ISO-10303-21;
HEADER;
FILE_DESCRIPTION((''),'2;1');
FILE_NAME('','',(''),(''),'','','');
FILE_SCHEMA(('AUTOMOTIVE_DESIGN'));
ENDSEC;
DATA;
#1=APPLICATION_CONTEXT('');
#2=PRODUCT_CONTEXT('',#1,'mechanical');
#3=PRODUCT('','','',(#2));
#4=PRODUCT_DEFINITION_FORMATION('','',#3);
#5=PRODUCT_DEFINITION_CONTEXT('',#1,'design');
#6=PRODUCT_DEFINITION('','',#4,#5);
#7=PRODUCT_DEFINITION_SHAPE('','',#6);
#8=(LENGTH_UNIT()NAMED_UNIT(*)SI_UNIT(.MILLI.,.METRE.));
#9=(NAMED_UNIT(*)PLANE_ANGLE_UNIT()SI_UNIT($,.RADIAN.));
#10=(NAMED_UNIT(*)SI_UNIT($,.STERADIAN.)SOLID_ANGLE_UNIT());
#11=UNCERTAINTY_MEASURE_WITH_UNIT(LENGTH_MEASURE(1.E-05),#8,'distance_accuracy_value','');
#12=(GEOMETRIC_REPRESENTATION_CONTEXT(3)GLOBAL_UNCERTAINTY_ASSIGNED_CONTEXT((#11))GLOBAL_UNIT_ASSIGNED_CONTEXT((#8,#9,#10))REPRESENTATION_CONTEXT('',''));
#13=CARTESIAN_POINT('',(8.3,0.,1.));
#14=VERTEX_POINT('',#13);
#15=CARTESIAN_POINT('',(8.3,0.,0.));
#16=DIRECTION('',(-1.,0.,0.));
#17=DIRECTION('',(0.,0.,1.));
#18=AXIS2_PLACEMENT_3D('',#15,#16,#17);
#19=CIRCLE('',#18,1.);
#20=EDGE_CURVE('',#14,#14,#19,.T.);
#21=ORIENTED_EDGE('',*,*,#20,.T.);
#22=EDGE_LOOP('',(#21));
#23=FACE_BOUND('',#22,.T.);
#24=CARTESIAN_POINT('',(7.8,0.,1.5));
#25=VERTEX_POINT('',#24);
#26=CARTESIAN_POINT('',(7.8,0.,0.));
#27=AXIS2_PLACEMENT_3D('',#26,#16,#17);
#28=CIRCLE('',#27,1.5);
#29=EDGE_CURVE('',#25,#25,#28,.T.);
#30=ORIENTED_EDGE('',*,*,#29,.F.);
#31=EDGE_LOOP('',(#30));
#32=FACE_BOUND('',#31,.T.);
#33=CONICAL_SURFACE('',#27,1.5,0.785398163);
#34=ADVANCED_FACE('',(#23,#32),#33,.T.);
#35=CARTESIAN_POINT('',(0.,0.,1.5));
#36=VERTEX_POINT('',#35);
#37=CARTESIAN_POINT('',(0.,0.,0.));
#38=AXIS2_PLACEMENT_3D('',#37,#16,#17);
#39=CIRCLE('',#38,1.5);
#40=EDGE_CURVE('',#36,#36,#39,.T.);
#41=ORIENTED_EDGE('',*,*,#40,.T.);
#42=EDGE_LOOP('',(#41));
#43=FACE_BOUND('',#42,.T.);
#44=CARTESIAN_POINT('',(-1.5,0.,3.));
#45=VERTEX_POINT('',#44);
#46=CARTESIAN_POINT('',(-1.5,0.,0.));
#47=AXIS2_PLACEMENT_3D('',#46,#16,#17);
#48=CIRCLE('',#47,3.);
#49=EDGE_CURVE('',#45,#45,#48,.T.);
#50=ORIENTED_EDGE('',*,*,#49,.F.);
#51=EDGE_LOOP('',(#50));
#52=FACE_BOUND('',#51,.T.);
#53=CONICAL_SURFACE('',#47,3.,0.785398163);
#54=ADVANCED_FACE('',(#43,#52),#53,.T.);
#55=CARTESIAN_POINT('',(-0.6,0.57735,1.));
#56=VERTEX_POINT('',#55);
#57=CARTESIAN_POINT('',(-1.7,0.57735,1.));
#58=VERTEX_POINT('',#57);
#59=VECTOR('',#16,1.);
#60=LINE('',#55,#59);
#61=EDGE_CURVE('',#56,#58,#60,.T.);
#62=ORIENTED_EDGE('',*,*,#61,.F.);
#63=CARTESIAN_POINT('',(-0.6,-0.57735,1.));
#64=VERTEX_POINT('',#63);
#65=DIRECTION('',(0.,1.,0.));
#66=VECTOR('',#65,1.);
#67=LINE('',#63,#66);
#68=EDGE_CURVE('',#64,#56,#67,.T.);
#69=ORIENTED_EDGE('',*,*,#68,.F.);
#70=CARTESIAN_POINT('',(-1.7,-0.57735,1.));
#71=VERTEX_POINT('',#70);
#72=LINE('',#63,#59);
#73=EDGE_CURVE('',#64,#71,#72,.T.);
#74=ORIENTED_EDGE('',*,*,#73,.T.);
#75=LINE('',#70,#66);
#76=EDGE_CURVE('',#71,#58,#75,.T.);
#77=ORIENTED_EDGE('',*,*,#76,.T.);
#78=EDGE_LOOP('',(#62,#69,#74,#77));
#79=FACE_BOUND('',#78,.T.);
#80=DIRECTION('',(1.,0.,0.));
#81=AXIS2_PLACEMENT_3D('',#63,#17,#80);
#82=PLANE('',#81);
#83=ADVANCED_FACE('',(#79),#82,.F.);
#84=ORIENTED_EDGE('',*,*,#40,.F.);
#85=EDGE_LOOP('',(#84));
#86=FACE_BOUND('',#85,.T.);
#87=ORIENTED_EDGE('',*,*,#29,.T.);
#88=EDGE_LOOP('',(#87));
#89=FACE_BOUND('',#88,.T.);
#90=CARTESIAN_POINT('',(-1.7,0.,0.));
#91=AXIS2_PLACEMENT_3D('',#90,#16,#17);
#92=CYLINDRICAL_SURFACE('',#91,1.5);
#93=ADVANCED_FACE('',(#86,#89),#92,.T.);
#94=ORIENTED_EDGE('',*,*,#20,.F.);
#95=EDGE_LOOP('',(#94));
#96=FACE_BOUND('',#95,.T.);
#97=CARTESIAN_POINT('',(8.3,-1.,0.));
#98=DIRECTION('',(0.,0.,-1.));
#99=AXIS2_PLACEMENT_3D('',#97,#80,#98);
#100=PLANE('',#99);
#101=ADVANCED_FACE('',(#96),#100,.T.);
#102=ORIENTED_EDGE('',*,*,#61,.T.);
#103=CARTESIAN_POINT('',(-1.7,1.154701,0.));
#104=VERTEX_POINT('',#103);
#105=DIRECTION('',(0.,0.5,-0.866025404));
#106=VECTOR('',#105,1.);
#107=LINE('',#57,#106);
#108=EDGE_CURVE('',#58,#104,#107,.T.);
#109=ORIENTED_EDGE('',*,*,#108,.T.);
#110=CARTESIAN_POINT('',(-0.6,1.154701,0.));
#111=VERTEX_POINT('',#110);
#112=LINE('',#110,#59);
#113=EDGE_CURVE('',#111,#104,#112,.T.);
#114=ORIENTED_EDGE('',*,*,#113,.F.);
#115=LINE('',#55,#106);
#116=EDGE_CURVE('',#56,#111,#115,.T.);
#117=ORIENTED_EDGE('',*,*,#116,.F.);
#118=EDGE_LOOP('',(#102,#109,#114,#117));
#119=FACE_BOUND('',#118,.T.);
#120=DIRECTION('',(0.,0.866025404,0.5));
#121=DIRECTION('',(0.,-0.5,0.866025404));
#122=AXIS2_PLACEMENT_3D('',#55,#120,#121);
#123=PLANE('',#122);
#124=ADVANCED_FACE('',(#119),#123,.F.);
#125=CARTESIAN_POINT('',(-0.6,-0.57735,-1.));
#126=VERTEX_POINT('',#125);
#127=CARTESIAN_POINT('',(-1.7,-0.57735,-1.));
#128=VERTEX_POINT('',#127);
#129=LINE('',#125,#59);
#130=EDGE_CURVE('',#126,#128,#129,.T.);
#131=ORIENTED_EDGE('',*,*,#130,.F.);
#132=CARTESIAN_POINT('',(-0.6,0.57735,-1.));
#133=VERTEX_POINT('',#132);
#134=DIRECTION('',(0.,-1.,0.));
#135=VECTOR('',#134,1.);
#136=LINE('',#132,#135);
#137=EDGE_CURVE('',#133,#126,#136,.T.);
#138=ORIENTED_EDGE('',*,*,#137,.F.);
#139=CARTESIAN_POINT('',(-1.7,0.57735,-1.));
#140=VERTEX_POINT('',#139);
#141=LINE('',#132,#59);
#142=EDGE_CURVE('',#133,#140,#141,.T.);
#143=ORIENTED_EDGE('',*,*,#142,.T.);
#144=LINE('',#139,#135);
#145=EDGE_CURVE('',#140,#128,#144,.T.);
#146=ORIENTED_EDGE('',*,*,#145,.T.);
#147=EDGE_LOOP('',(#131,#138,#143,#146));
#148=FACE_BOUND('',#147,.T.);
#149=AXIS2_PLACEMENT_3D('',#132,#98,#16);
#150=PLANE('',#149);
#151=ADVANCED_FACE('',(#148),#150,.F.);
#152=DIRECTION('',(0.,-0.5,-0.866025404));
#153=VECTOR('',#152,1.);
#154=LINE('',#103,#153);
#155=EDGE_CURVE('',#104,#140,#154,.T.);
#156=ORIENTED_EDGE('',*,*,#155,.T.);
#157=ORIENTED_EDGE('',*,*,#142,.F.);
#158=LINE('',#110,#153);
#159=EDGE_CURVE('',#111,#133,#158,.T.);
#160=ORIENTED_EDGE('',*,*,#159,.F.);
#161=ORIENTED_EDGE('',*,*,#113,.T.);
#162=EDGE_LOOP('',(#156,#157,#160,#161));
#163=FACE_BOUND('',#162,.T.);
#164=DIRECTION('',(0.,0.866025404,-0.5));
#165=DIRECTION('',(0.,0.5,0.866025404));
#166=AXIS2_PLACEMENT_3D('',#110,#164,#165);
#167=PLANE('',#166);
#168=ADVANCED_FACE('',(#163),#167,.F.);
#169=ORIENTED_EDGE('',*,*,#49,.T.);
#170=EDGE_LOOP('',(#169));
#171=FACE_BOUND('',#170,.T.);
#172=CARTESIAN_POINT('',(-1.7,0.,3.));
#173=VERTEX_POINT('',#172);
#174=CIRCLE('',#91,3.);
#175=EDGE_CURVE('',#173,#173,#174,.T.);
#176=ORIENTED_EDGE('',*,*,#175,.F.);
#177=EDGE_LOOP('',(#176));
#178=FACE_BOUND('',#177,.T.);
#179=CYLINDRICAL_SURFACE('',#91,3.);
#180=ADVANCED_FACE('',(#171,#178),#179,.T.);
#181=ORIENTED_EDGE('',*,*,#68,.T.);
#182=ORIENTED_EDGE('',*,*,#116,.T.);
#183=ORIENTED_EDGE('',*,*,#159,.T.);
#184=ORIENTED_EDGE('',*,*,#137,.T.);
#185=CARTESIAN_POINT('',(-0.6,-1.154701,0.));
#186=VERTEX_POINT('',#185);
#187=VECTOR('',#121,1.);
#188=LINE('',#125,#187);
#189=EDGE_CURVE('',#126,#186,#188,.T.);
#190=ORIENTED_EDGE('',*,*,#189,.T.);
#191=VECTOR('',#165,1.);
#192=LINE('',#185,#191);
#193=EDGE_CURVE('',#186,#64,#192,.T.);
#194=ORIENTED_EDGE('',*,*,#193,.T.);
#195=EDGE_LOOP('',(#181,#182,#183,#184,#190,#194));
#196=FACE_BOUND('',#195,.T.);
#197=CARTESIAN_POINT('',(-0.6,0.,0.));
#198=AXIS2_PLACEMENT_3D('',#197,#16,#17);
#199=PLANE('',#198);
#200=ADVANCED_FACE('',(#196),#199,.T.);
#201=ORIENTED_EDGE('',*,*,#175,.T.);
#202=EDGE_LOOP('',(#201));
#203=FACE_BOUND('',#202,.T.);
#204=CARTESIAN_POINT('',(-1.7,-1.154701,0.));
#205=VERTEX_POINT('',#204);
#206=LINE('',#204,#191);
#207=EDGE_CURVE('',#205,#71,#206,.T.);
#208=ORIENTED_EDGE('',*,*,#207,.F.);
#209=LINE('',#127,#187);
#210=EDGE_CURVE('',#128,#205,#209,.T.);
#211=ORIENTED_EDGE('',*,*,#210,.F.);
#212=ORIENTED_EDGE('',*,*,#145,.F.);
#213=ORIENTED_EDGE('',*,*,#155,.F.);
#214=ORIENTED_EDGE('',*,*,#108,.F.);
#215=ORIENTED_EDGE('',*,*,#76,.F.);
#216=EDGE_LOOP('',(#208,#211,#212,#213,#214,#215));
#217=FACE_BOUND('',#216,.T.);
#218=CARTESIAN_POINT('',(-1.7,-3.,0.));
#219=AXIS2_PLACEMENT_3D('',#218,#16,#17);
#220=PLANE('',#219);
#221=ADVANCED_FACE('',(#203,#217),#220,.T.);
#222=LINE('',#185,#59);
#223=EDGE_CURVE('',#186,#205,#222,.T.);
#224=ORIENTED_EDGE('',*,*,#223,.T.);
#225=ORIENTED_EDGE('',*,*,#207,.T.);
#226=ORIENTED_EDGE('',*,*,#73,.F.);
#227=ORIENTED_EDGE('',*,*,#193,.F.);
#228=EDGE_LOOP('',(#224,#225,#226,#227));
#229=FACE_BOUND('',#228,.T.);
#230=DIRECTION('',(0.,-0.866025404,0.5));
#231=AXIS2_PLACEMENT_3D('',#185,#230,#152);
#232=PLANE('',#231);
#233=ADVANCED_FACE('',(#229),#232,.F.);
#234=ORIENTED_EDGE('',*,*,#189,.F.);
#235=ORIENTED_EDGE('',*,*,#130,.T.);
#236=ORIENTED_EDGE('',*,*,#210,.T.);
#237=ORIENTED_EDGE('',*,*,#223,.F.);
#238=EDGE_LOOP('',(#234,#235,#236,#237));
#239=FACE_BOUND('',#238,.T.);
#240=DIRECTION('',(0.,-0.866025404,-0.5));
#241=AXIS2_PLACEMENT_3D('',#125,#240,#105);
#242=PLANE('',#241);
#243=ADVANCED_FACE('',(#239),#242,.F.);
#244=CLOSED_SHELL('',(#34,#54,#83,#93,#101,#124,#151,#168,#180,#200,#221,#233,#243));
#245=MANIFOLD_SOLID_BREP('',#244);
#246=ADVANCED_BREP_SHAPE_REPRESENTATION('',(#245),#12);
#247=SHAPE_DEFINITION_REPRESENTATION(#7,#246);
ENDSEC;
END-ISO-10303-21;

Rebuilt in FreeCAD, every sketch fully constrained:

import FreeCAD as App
import Part
import Sketcher

V = App.Vector
Q = App.Units.Quantity


def add_polygon(sketch, points):
    """Adds a closed chain of lines whose ends are joined by coincident constraints."""
    first, n = sketch.GeometryCount, len(points)
    for a, b in zip(points, points[1:] + points[:1]):
        sketch.addGeometry(Part.LineSegment(App.Vector(*a, 0), App.Vector(*b, 0)), False)
    for i in range(n):
        sketch.addConstraint(Sketcher.Constraint("Coincident", first + i, 2, first + (i + 1) % n, 1))

doc = App.newDocument("Part")
body = doc.addObject("PartDesign::Body", "Body")

# Sketch on XY plane
sketch1 = doc.addObject("Sketcher::SketchObject", "Sketch")
body.addObject(sketch1)
sketch1.AttachmentSupport = (doc.XY_Plane, [""])
sketch1.MapMode = "FlatFace"
add_polygon(sketch1, [(0, -1.5), (7.8, -1.5), (8.3, -1), (8.3, 0), (-1.7, 0), (-1.7, -3), (-1.5, -3)])  # lines 0-6
sketch1.addConstraint(Sketcher.Constraint("Horizontal", 0))
sketch1.addConstraint(Sketcher.Constraint("Vertical", 2))
sketch1.addConstraint(Sketcher.Constraint("Horizontal", 3))
sketch1.addConstraint(Sketcher.Constraint("Vertical", 4))
sketch1.addConstraint(Sketcher.Constraint("Horizontal", 5))
sketch1.addConstraint(Sketcher.Constraint("PointOnObject", 2, 2, -1))
sketch1.addConstraint(Sketcher.Constraint("PointOnObject", 6, 2, -2))
sketch1.addConstraint(Sketcher.Constraint("Parallel", 1, 6))
sketch1.addConstraint(Sketcher.Constraint("DistanceX", 3, 2, 3, 1, Q("10 mm")))
sketch1.addConstraint(Sketcher.Constraint("DistanceY", 2, 1, 2, 2, Q("1 mm")))
sketch1.addConstraint(Sketcher.Constraint("DistanceY", 4, 2, 4, 1, Q("3 mm")))
sketch1.addConstraint(Sketcher.Constraint("Angle", 1, Q("45 deg")))
sketch1.addConstraint(Sketcher.Constraint("DistanceX", 0, 1, 0, 2, Q("7.8 mm")))
sketch1.addConstraint(Sketcher.Constraint("DistanceY", 0, 2, -1, 1, Q("1.5 mm")))
revolution = doc.addObject("PartDesign::Revolution", "Revolution")
body.addObject(revolution)
revolution.Profile = sketch1
revolution.ReferenceAxis = (sketch1, ["H_Axis"])
revolution.Angle = 360

# Sketch on YZ plane
sketch2 = doc.addObject("Sketcher::SketchObject", "Sketch001")
body.addObject(sketch2)
sketch2.AttachmentSupport = (doc.YZ_Plane, [""])
sketch2.MapMode = "FlatFace"
sketch2.AttachmentOffset = App.Placement(V(0, 0, -1.7), App.Rotation())
add_polygon(sketch2, [(1.154701, 0), (0.57735, -1), (-0.57735, -1), (-1.154701, 0), (-0.57735, 1), (0.57735, 1)])  # lines 0-5
sketch2.addConstraint(Sketcher.Constraint("Horizontal", 1))
sketch2.addConstraint(Sketcher.Constraint("Horizontal", 4))
sketch2.addConstraint(Sketcher.Constraint("Symmetric", 0, 2, 3, 2, -1, 1))
sketch2.addConstraint(Sketcher.Constraint("Symmetric", 2, 2, 5, 2, -1, 1))
sketch2.addConstraint(Sketcher.Constraint("PointOnObject", 2, 2, -1))
sketch2.addConstraint(Sketcher.Constraint("Parallel", 2, 5))
sketch2.addConstraint(Sketcher.Constraint("Vertical", 1, 2, 3, 2))
sketch2.addConstraint(Sketcher.Constraint("Angle", 0, Q("-120 deg")))
sketch2.addConstraint(Sketcher.Constraint("DistanceY", 0, 2, -1, 1, Q("1 mm")))
sketch2.addConstraint(Sketcher.Constraint("DistanceX", 1, 2, 1, 1, Q("1.154701 mm")))
pocket1 = doc.addObject("PartDesign::Pocket", "Pocket")
body.addObject(pocket1)
pocket1.Profile = sketch2
pocket1.Length = 1.1
pocket1.Reversed = True

doc.recompute()
